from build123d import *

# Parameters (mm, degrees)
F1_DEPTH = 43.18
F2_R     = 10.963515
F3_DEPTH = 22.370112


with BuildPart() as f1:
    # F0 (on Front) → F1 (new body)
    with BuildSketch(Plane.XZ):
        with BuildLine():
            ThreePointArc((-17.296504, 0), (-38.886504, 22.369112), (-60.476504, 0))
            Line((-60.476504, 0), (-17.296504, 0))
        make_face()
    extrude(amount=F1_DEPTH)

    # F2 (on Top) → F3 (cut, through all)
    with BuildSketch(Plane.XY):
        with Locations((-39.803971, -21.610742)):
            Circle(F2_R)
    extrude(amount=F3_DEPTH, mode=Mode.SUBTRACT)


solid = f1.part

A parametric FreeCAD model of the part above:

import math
import FreeCAD as App
import Part
import Sketcher
from FreeCAD import Vector
Q = App.Units.Quantity

doc = App.newDocument("Part")
body = doc.addObject("PartDesign::Body", "Body")

sketch1 = body.newObject("Sketcher::SketchObject", "Sketch")
sketch1.AttachmentSupport = (doc.getObject("XZ_Plane"), [""])
sketch1.MapMode = "FlatFace"
sketch1.addGeometry([
    Part.ArcOfCircle(Part.Circle(Vector(-39, 1, 0), Vector(0, 0, 1), 22), math.radians(-2), math.radians(182)),
    Part.LineSegment(Vector(-60, 0, 0), Vector(-17, 0, 0)),
], False)
sketch1.addConstraint([
    Sketcher.Constraint("Coincident", 0, 1, 1, 2),
    Sketcher.Constraint("Coincident", 1, 1, 0, 2),
    Sketcher.Constraint("Horizontal", 1),
    Sketcher.Constraint("PointOnObject", 0, 1, -1),
    Sketcher.Constraint("DistanceX", 1, 1, 1, 2, Q("1.7 in")),
    Sketcher.Constraint("Radius", 0, 21.603568),
    Sketcher.Constraint("DistanceX", 0, 3, -1, 1, 38.886504),
])
pad1 = body.newObject("PartDesign::Pad", "Pad")
pad1.Profile = sketch1
pad1.Length = Q("1.7 in")

sketch2 = body.newObject("Sketcher::SketchObject", "Sketch001")
sketch2.AttachmentSupport = (doc.getObject("XY_Plane"), [""])
sketch2.MapMode = "FlatFace"
sketch2.addGeometry(Part.Circle(Vector(-40, -22, 0), Vector(0, 0, 1), 11), False)
sketch2.addConstraint([
    Sketcher.Constraint("Diameter", 0, 21.92703),
    Sketcher.Constraint("DistanceX", 0, 3, -1, 1, 39.803971),
    Sketcher.Constraint("DistanceY", 0, 3, -1, 1, 21.610742),
])
pocket1 = body.newObject("PartDesign::Pocket", "Pocket")
pocket1.Profile = sketch2
pocket1.Type = "ThroughAll"
pocket1.Reversed = True

doc.recompute()
